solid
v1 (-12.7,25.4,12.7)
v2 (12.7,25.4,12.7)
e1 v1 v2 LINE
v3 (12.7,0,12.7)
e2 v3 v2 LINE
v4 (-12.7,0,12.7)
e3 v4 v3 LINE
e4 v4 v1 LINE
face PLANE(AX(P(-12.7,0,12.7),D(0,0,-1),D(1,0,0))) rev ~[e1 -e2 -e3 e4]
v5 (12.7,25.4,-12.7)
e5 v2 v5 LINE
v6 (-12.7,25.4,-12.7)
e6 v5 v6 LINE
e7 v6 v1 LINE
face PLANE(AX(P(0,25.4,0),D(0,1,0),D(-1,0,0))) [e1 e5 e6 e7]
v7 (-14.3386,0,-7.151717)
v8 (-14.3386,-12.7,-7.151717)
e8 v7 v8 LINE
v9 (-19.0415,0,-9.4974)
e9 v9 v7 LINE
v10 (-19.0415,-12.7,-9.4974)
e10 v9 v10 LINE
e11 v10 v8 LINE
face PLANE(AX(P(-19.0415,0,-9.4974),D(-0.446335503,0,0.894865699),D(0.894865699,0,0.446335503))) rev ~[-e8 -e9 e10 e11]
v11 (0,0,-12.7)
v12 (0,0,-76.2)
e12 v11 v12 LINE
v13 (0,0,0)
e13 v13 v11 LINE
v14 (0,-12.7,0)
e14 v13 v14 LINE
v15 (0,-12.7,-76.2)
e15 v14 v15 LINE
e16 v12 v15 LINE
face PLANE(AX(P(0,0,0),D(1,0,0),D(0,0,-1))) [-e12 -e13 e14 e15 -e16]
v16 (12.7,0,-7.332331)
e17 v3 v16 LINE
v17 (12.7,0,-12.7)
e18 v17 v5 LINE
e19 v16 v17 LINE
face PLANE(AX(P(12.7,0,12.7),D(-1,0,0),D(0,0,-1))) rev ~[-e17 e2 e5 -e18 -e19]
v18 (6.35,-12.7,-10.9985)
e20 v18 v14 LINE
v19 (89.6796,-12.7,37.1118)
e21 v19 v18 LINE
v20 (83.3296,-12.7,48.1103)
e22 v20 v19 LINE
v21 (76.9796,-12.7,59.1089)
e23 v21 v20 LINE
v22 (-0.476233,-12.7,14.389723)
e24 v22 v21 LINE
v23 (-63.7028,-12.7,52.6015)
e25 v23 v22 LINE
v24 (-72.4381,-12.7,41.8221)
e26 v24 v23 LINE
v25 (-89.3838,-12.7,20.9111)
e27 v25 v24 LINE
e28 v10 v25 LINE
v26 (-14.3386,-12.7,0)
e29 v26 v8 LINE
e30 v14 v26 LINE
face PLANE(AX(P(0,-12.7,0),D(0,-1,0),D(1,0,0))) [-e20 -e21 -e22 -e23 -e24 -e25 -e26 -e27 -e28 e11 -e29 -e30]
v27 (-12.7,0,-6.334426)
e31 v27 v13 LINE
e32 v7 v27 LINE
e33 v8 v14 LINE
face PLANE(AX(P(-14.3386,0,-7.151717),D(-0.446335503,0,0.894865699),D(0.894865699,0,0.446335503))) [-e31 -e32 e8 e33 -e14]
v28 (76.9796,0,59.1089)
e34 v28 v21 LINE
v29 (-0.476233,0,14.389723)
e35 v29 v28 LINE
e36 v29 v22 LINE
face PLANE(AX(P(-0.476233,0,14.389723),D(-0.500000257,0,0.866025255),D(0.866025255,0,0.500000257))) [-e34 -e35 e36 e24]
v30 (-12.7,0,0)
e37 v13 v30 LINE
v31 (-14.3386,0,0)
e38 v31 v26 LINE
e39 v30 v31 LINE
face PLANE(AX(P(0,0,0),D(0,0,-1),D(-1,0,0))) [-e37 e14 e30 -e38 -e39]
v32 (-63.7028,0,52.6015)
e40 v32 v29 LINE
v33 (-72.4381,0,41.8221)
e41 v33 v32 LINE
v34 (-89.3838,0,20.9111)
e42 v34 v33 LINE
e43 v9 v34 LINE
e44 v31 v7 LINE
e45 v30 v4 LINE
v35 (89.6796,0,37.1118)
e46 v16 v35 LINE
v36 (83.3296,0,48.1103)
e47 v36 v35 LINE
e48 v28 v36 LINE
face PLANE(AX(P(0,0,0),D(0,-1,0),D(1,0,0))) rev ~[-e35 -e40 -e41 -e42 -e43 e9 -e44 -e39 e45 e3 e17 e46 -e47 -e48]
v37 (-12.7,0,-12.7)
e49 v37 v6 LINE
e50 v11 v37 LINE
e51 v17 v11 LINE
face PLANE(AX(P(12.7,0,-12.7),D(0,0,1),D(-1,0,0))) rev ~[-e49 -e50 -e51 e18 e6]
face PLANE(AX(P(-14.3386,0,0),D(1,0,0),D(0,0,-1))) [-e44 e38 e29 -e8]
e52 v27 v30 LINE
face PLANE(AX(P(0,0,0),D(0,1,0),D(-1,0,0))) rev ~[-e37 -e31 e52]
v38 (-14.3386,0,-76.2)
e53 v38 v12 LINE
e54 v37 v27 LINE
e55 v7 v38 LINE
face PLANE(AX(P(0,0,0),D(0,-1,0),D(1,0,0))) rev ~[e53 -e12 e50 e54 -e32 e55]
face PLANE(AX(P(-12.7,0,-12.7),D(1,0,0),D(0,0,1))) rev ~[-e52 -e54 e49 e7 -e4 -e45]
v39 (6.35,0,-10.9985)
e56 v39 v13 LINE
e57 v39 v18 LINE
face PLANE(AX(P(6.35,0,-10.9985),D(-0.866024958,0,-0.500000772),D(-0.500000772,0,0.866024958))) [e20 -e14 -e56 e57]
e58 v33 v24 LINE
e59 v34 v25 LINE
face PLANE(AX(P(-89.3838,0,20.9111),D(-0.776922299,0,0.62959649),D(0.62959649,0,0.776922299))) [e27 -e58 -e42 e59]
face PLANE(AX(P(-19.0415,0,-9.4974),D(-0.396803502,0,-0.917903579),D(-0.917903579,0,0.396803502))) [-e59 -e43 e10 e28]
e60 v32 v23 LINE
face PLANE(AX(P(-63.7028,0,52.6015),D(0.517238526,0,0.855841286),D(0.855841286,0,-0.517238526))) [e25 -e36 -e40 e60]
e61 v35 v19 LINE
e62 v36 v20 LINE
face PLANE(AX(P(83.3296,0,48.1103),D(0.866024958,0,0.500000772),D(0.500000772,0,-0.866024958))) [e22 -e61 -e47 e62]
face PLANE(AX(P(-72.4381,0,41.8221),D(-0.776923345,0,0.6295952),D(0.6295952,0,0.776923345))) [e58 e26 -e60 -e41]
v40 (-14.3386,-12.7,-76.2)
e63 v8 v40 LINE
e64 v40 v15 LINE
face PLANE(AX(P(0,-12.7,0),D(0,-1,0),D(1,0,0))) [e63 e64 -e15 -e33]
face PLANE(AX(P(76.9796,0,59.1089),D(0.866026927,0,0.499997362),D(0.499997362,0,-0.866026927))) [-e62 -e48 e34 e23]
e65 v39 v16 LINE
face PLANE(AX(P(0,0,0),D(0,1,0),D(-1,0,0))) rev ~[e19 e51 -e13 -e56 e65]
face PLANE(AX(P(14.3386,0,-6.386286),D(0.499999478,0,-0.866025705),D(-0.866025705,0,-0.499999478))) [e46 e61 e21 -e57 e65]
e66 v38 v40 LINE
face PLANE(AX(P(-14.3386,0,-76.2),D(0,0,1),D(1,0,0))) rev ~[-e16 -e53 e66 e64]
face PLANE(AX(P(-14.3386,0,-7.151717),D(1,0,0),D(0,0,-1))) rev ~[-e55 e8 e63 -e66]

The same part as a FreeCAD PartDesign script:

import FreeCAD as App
import Part
import Sketcher
Q = App.Units.Quantity

doc = App.newDocument("Part")
body = doc.addObject("PartDesign::Body", "Body")

sketch1 = body.newObject("Sketcher::SketchObject", "Sketch")
sketch1.AttachmentSupport = (doc.getObject("XZ_Plane"), [""])
sketch1.MapMode = "FlatFace"
sketch1.addGeometry([
    Part.LineSegment(App.Vector(-12.7, 12.7, 0), App.Vector(12.7, 12.7, 0)),
    Part.LineSegment(App.Vector(12.7, 12.7, 0), App.Vector(12.7, -12.7, 0)),
    Part.LineSegment(App.Vector(12.7, -12.7, 0), App.Vector(-12.7, -12.7, 0)),
    Part.LineSegment(App.Vector(-12.7, -12.7, 0), App.Vector(-12.7, 12.7, 0)),
], False)
sketch1.addConstraint([
    Sketcher.Constraint("Coincident", 0, 2, 1, 1),
    Sketcher.Constraint("Coincident", 1, 2, 2, 1),
    Sketcher.Constraint("Coincident", 2, 2, 3, 1),
    Sketcher.Constraint("Coincident", 3, 2, 0, 1),
    Sketcher.Constraint("Horizontal", 0),
    Sketcher.Constraint("Vertical", 1),
    Sketcher.Constraint("Horizontal", 2),
    Sketcher.Constraint("Vertical", 3),
    Sketcher.Constraint("Symmetric", 0, 2, 2, 2, -1, 1),
    Sketcher.Constraint("Equal", 2, 1),
    Sketcher.Constraint("DistanceX", 0, 1, 0, 2, Q("1 in")),
])
pad1 = body.newObject("PartDesign::Pad", "Pad")
pad1.Profile = sketch1
pad1.Length = Q("1 in")
pad1.Reversed = True

sketch2 = body.newObject("Sketcher::SketchObject", "Sketch001")
sketch2.AttachmentSupport = (doc.getObject("XZ_Plane"), [""])
sketch2.MapMode = "FlatFace"
sketch2.addGeometry([
    Part.LineSegment(App.Vector(6.35, -10.9985, 0), App.Vector(89.6796, 37.1118, 0)),
    Part.LineSegment(App.Vector(89.6796, 37.1118, 0), App.Vector(83.3296, 48.1103, 0)),
    Part.LineSegment(App.Vector(83.3296, 48.1103, 0), App.Vector(76.9796, 59.1089, 0)),
    Part.LineSegment(App.Vector(76.9796, 59.1089, 0), App.Vector(-0.476233, 14.389723, 0)),
    Part.LineSegment(App.Vector(-0.476233, 14.389723, 0), App.Vector(-63.7028, 52.6015, 0)),
    Part.LineSegment(App.Vector(-63.7028, 52.6015, 0), App.Vector(-72.4381, 41.8221, 0)),
    Part.LineSegment(App.Vector(-72.4381, 41.8221, 0), App.Vector(-89.3838, 20.9111, 0)),
    Part.LineSegment(App.Vector(-89.3838, 20.9111, 0), App.Vector(-19.0415, -9.4974, 0)),
    Part.LineSegment(App.Vector(-19.0415, -9.4974, 0), App.Vector(-14.3386, -7.151717, 0)),
    Part.LineSegment(App.Vector(-14.3386, -7.151717, 0), App.Vector(-14.3386, 0, 0)),
    Part.LineSegment(App.Vector(-14.3386, 0, 0), App.Vector(0, 0, 0)),
    Part.LineSegment(App.Vector(0, 0, 0), App.Vector(6.35, -10.9985, 0)),
    Part.LineSegment(App.Vector(0, -76.2, 0), App.Vector(0, 0, 0)),
    Part.LineSegment(App.Vector(0, 0, 0), App.Vector(-14.3386, -7.151717, 0)),
    Part.LineSegment(App.Vector(-14.3386, -7.151717, 0), App.Vector(-14.3386, -76.2, 0)),
    Part.LineSegment(App.Vector(-14.3386, -76.2, 0), App.Vector(0, -76.2, 0)),
], False)
sketch2.addConstraint([
    Sketcher.Constraint("Coincident", 0, 2, 1, 1),
    Sketcher.Constraint("Coincident", 1, 2, 2, 1),
    Sketcher.Constraint("Coincident", 2, 2, 3, 1),
    Sketcher.Constraint("Coincident", 3, 2, 4, 1),
    Sketcher.Constraint("Coincident", 4, 2, 5, 1),
    Sketcher.Constraint("Coincident", 5, 2, 6, 1),
    Sketcher.Constraint("Coincident", 6, 2, 7, 1),
    Sketcher.Constraint("Coincident", 7, 2, 8, 1),
    Sketcher.Constraint("Coincident", 8, 2, 9, 1),
    Sketcher.Constraint("Coincident", 9, 2, 10, 1),
    Sketcher.Constraint("Coincident", 10, 2, 11, 1),
    Sketcher.Constraint("Coincident", 11, 2, 0, 1),
    Sketcher.Constraint("Coincident", 12, 2, 13, 1),
    Sketcher.Constraint("Coincident", 13, 2, 14, 1),
    Sketcher.Constraint("Coincident", 14, 2, 15, 1),
    Sketcher.Constraint("Coincident", 15, 2, 12, 1),
    Sketcher.Constraint("Vertical", 9),
    Sketcher.Constraint("Horizontal", 10),
    Sketcher.Constraint("Vertical", 12),
    Sketcher.Constraint("Vertical", 14),
    Sketcher.Constraint("Horizontal", 15),
    Sketcher.Constraint("Coincident", 10, 2, -1, 1),
    Sketcher.Constraint("Coincident", 12, 2, -1, 1),
    Sketcher.Constraint("Coincident", 13, 2, 8, 2),
    Sketcher.Constraint("Perpendicular", 0, 1),
    Sketcher.Constraint("Parallel", 1, 2),
    Sketcher.Constraint("Perpendicular", 2, 3),
    Sketcher.Constraint("Parallel", 5, 6),
    Sketcher.Constraint("Perpendicular", 3, 11),
    Sketcher.Constraint("Parallel", 8, 13),
    Sketcher.Constraint("Equal", 1, 2),
    Sketcher.Constraint("Equal", 2, 11),
    Sketcher.Constraint("DistanceY", 12, 1, 12, 2, Q("3 in")),
    Sketcher.Constraint("Angle", 1, Q("120 deg")),
    Sketcher.Constraint("Distance", 1, Q("0.5 in")),
    Sketcher.Constraint("Angle", 5, Q("-129.0203 deg")),
    Sketcher.Constraint("Angle", 8, Q("26.5088 deg")),
    Sketcher.Constraint("DistanceX", 10, 1, 10, 2, Q("0.5645 in")),
    Sketcher.Constraint("Distance", 3, Q("3.5212 in")),
    Sketcher.Constraint("Distance", 8, Q("0.2069 in")),
    Sketcher.Constraint("DistanceX", -1, 1, 0, 2, Q("3.5307 in")),
    Sketcher.Constraint("DistanceX", 5, 2, -1, 1, Q("2.8519 in")),
    Sketcher.Constraint("DistanceY", 3, 2, 4, 2, Q("1.5044 in")),
    Sketcher.Constraint("DistanceX", 5, 2, 4, 2, Q("0.3439 in")),
    Sketcher.Constraint("DistanceX", 6, 2, 3, 2, Q("3.5003 in")),
])
pad2 = body.newObject("PartDesign::Pad", "Pad001")
pad2.Profile = sketch2
pad2.Length = Q("0.5 in")

doc.recompute()
